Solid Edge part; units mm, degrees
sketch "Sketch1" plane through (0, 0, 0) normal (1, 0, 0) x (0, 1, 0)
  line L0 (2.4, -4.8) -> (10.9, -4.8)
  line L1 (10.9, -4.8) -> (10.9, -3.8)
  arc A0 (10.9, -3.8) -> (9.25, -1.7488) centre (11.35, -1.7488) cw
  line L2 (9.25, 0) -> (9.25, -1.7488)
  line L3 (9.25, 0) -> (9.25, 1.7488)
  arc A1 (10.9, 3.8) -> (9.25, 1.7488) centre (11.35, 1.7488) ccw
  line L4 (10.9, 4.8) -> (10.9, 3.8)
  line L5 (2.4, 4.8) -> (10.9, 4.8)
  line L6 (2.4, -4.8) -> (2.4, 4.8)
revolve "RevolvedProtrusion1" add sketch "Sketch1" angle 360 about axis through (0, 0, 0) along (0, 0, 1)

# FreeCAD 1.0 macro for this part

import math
import FreeCAD as App
import Part
import Sketcher
from FreeCAD import Vector

doc = App.newDocument("Part")
params = doc.addObject("Spreadsheet::Sheet", "Params")
for row, (alias, value) in enumerate([
    ("sketch1_radius", "2.1 mm"),
    ("sketch1_height", "1 mm"),
    ("sketch1_width", "8.5 mm"),
    ("sketch1_height2", "9.6 mm"),
    ("revolution_angle", "360 deg"),
], start=1):
    params.set(f"A{row}", alias)
    params.set(f"B{row}", "=" + value)
    params.setAlias(f"B{row}", alias)

body = doc.addObject("PartDesign::Body", "Body")

# Sketch on YZ plane
sketch1 = body.newObject("Sketcher::SketchObject", "Sketch")
sketch1.AttachmentSupport = (doc.getObject("YZ_Plane"), [""])
sketch1.MapMode = "FlatFace"
sketch1.addGeometry([
    Part.LineSegment(Vector(2.4, 4.8, 0), Vector(2.4, -4.8, 0)),  # 0
    Part.LineSegment(Vector(2.4, -4.8, 0), Vector(10.9, -4.8, 0)),  # 1
    Part.LineSegment(Vector(10.9, -4.8, 0), Vector(10.9, -3.8, 0)),  # 2
    Part.ArcOfCircle(Part.Circle(Vector(11.3, -1.7, 0), Vector(0, 0, 1), 2.1), math.radians(180), math.radians(258)),  # 3
    Part.LineSegment(Vector(9.2, -1.7, 0), Vector(9.2, 1.7, 0)),  # 4
    Part.ArcOfCircle(Part.Circle(Vector(11.3, 1.7, 0), Vector(0, 0, 1), 2.1), math.radians(102), math.radians(180)),  # 5
    Part.LineSegment(Vector(10.9, 3.8, 0), Vector(10.9, 4.8, 0)),  # 6
    Part.LineSegment(Vector(10.9, 4.8, 0), Vector(2.4, 4.8, 0)),  # 7
], False)
sketch1.addConstraint([
    Sketcher.Constraint("Coincident", 0, 2, 1, 1),
    Sketcher.Constraint("Coincident", 1, 2, 2, 1),
    Sketcher.Constraint("Coincident", 2, 2, 3, 2),
    Sketcher.Constraint("Tangent", 3, 1, 4, 1),
    Sketcher.Constraint("Tangent", 4, 2, 5, 2),
    Sketcher.Constraint("Coincident", 5, 1, 6, 1),
    Sketcher.Constraint("Coincident", 6, 2, 7, 1),
    Sketcher.Constraint("Coincident", 7, 2, 0, 1),
    Sketcher.Constraint("Vertical", 0),
    Sketcher.Constraint("Horizontal", 1),
    Sketcher.Constraint("Vertical", 2),
    Sketcher.Constraint("Vertical", 4),
    Sketcher.Constraint("Vertical", 6),
    Sketcher.Constraint("Horizontal", 7),
    Sketcher.Constraint("Equal", 3, 5),
    Sketcher.Constraint("Symmetric", 2, 2, 5, 1, -1),
    Sketcher.Constraint("Equal", 2, 6),
    Sketcher.Constraint("Radius", 3, 2.1),
    Sketcher.Constraint("DistanceY", 2, 1, 2, 2, 1.0),
    Sketcher.Constraint("DistanceX", 1, 1, 1, 2, 8.5),
    Sketcher.Constraint("DistanceY", 0, 2, 0, 1, 9.6),
    Sketcher.Constraint("DistanceX", -1, 1, 0, 2, 2.4),
    Sketcher.Constraint("DistanceX", -1, 1, 3, 3, 11.35),
])
sketch1.setExpression("Constraints[17]", "Params.sketch1_radius")
sketch1.setExpression("Constraints[18]", "Params.sketch1_height")
sketch1.setExpression("Constraints[19]", "Params.sketch1_width")
sketch1.setExpression("Constraints[20]", "Params.sketch1_height2")
revolution = body.newObject("PartDesign::Revolution", "Revolution")
revolution.Profile = sketch1
revolution.ReferenceAxis = (sketch1, ["V_Axis"])
revolution.setExpression("Angle", "Params.revolution_angle")

doc.recompute()
